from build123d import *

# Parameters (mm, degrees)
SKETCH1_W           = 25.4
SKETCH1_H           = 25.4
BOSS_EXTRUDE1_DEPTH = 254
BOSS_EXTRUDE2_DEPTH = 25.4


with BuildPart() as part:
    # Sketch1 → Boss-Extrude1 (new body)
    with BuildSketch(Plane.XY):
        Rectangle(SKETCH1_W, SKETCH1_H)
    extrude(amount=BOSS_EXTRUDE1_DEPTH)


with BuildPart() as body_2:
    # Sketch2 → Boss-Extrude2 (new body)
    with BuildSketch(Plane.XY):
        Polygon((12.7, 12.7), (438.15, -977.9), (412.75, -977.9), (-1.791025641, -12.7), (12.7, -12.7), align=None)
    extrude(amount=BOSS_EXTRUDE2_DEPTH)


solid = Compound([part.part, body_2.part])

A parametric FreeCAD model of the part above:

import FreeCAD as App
import Part
import Sketcher
Q = App.Units.Quantity


def add_polygon(sketch, points):
    """Adds a closed chain of lines whose ends are joined by coincident constraints."""
    first, n = sketch.GeometryCount, len(points)
    for a, b in zip(points, points[1:] + points[:1]):
        sketch.addGeometry(Part.LineSegment(App.Vector(*a, 0), App.Vector(*b, 0)), False)
    for i in range(n):
        sketch.addConstraint(Sketcher.Constraint("Coincident", first + i, 2, first + (i + 1) % n, 1))

doc = App.newDocument("Part")
body = doc.addObject("PartDesign::Body", "Body")

# Sketch on XY plane
sketch1 = body.newObject("Sketcher::SketchObject", "Sketch")
sketch1.AttachmentSupport = (doc.getObject("XY_Plane"), [""])
sketch1.MapMode = "FlatFace"
add_polygon(sketch1, [(-12.7, 12.7), (-12.7, -12.7), (12.7, -12.7), (12.7, 12.7)])  # lines 0-3
sketch1.addConstraint([
    Sketcher.Constraint("Vertical", 0),
    Sketcher.Constraint("Horizontal", 1),
    Sketcher.Constraint("Vertical", 2),
    Sketcher.Constraint("Horizontal", 3),
    Sketcher.Constraint("Symmetric", 0, 2, 2, 2, -1, 1),
    Sketcher.Constraint("Equal", 3, 0),
    Sketcher.Constraint("DistanceX", 1, 1, 1, 2, Q("1 in")),
])
pad1 = body.newObject("PartDesign::Pad", "Pad")
pad1.Profile = sketch1
pad1.Length = Q("10 in")
body2 = doc.addObject("PartDesign::Body", "Body001")

# Sketch on XY plane
sketch2 = body2.newObject("Sketcher::SketchObject", "Sketch001")
sketch2.AttachmentSupport = (doc.getObject("XY_Plane001"), [""])
sketch2.MapMode = "FlatFace"
add_polygon(sketch2, [(438.15, -977.9), (12.7, 12.7), (12.7, -12.7), (-1.791026, -12.7), (412.75, -977.9)])  # lines 0-4
sketch2.addConstraint([
    Sketcher.Constraint("Vertical", 1),
    Sketcher.Constraint("Horizontal", 2),
    Sketcher.Constraint("Horizontal", 4),
    Sketcher.Constraint("Parallel", 0, 3),
    Sketcher.Constraint("Equal", 4, 1),
    Sketcher.Constraint("DistanceX", 4, 1, 4, 2, Q("1 in")),
    Sketcher.Constraint("DistanceY", 3, 2, 1, 2, Q("38 in")),
    Sketcher.Constraint("DistanceX", -1, 1, 0, 2, Q("0.5 in")),
    Sketcher.Constraint("DistanceY", -1, 1, 0, 2, Q("0.5 in")),
    Sketcher.Constraint("DistanceX", -1, 1, 3, 2, Q("16.25 in")),
])
pad2 = body2.newObject("PartDesign::Pad", "Pad001")
pad2.Profile = sketch2
pad2.Length = Q("1 in")

doc.recompute()
